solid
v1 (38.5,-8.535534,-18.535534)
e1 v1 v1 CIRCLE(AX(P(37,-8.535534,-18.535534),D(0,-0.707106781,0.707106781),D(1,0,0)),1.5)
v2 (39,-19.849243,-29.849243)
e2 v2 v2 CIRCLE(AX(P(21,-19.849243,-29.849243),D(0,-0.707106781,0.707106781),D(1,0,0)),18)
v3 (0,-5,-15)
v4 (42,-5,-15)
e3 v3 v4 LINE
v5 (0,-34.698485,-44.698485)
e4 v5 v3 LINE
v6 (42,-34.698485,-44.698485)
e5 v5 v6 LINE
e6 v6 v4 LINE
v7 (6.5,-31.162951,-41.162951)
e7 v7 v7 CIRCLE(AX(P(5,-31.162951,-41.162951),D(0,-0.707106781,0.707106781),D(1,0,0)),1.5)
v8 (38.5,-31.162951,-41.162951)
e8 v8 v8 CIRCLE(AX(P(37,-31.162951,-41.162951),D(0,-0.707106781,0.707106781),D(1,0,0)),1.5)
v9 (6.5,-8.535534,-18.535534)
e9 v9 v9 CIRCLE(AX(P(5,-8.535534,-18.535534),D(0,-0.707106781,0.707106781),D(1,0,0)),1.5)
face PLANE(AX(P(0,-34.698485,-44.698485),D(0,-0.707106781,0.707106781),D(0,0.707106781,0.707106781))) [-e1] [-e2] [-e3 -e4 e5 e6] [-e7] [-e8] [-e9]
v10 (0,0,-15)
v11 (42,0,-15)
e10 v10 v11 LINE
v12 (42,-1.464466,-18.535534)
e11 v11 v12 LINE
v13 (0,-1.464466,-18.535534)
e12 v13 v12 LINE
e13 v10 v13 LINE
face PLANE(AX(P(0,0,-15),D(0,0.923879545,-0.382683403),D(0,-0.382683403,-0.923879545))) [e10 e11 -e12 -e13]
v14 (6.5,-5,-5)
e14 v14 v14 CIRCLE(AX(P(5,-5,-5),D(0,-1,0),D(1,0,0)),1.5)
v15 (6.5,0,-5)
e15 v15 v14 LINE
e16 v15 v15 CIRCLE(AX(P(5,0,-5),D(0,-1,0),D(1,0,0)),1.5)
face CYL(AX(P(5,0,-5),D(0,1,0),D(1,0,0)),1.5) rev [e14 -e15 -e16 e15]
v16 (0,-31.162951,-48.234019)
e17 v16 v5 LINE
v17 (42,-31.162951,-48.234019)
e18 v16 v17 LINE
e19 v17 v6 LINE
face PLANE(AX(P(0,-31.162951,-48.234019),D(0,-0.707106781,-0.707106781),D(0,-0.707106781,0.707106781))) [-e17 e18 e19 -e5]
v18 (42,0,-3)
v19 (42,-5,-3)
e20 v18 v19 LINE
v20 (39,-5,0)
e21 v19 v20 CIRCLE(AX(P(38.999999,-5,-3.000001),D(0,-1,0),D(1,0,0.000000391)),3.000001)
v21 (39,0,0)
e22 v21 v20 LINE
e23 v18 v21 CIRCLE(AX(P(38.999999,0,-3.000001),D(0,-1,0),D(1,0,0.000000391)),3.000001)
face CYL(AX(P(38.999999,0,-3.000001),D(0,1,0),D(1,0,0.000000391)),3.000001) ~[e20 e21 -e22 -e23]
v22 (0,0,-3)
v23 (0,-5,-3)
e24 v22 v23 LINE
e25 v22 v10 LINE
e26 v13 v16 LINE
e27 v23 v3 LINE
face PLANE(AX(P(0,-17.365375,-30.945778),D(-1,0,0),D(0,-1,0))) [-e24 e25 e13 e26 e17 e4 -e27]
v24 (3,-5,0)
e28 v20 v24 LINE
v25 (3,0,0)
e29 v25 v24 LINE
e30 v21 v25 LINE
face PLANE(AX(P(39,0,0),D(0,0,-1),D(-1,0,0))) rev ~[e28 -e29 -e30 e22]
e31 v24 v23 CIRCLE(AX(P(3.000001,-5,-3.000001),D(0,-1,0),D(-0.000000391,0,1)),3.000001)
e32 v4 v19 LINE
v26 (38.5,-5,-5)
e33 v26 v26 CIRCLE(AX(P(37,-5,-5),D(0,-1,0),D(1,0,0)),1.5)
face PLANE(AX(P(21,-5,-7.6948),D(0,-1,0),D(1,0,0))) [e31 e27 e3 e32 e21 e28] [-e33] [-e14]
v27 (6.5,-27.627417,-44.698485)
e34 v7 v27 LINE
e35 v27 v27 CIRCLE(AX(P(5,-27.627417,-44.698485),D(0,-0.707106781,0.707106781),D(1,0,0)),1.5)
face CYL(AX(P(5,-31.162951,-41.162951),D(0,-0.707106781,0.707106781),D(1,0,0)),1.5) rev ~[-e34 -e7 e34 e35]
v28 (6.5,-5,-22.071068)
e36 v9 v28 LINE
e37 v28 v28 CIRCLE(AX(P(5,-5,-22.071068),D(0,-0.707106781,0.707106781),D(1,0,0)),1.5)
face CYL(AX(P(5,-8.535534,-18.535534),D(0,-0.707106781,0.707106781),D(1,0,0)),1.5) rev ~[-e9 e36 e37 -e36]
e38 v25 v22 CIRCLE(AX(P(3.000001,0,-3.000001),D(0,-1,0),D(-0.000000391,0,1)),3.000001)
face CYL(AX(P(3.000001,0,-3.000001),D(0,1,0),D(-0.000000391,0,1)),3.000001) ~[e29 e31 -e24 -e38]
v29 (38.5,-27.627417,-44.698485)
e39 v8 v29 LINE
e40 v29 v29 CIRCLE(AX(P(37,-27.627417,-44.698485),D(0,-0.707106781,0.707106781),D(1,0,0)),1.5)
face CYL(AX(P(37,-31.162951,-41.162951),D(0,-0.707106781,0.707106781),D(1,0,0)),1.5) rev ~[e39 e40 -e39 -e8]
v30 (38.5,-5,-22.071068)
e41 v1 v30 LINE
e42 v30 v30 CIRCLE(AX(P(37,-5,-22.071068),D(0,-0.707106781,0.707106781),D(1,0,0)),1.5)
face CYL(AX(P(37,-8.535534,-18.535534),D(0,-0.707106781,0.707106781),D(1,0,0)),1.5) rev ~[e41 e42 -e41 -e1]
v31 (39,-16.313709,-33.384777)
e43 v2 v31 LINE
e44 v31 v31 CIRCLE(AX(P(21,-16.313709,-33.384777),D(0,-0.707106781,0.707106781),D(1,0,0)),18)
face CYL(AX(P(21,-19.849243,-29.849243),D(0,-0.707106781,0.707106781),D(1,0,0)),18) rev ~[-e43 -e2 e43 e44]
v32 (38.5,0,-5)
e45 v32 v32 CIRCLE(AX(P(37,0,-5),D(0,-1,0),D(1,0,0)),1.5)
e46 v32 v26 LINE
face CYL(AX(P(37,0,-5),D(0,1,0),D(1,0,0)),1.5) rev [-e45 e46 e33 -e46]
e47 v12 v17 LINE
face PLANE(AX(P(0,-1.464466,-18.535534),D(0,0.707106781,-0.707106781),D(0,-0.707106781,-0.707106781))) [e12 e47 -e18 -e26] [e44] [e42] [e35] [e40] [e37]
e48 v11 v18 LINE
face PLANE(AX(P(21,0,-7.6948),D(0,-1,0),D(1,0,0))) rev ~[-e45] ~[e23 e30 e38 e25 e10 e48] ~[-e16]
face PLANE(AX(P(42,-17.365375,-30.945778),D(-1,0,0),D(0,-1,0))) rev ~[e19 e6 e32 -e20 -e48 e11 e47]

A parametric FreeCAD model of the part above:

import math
import FreeCAD as App
import Part
import Sketcher
from FreeCAD import Vector
Q = App.Units.Quantity

doc = App.newDocument("Part")
body = doc.addObject("PartDesign::Body", "Body")

sketch1 = body.newObject("Sketcher::SketchObject", "Sketch")
sketch1.AttachmentSupport = (doc.getObject("XZ_Plane"), [""])
sketch1.MapMode = "FlatFace"
sketch1.addGeometry(Part.LineSegment(Vector(39, 0, 0), Vector(3, 0, 0)), False)
sketch1.addGeometry(Part.ArcOfCircle(Part.Circle(Vector(3, -3, 0), Vector(0, 0, 1), 3), math.radians(90), math.radians(180)), False)
sketch1.addGeometry(Part.LineSegment(Vector(0, -3, 0), Vector(0, -15, 0)), False)
sketch1.addGeometry(Part.LineSegment(Vector(0, -15, 0), Vector(42, -15, 0)), False)
sketch1.addGeometry(Part.LineSegment(Vector(42, -15, 0), Vector(42, -3, 0)), False)
sketch1.addGeometry(Part.ArcOfCircle(Part.Circle(Vector(39, -3, 0), Vector(0, 0, 1), 3), math.radians(0), math.radians(90)), False)
sketch1.addGeometry(Part.Circle(Vector(5, -5, 0), Vector(0, 0, 1), 1.5), False)
sketch1.addGeometry(Part.Circle(Vector(37, -5, 0), Vector(0, 0, 1), 1.5), False)
sketch1.addConstraint(Sketcher.Constraint("Tangent", 0, 2, 1, 1))
sketch1.addConstraint(Sketcher.Constraint("Tangent", 1, 2, 2, 1))
sketch1.addConstraint(Sketcher.Constraint("Coincident", 2, 2, 3, 1))
sketch1.addConstraint(Sketcher.Constraint("Coincident", 3, 2, 4, 1))
sketch1.addConstraint(Sketcher.Constraint("Tangent", 4, 2, 5, 1))
sketch1.addConstraint(Sketcher.Constraint("Tangent", 5, 2, 0, 1))
sketch1.addConstraint(Sketcher.Constraint("Horizontal", 0))
sketch1.addConstraint(Sketcher.Constraint("Vertical", 2))
sketch1.addConstraint(Sketcher.Constraint("Horizontal", 3))
sketch1.addConstraint(Sketcher.Constraint("Vertical", 4))
sketch1.addConstraint(Sketcher.Constraint("Equal", 1, 5))
sketch1.addConstraint(Sketcher.Constraint("Equal", 6, 7))
sketch1.addConstraint(Sketcher.Constraint("PointOnObject", 0, 2, -1))
sketch1.addConstraint(Sketcher.Constraint("PointOnObject", 1, 2, -2))
sketch1.addConstraint(Sketcher.Constraint("Horizontal", 6, 3, 7, 3))
sketch1.addConstraint(Sketcher.Constraint("Diameter", 6, 3.0))
sketch1.addConstraint(Sketcher.Constraint("Radius", 1, 3.000001))
sketch1.addConstraint(Sketcher.Constraint("DistanceX", 0, 2, 0, 1, 36.0))
sketch1.addConstraint(Sketcher.Constraint("DistanceY", 2, 2, 2, 1, 12.0))
sketch1.addConstraint(Sketcher.Constraint("DistanceX", -1, 1, 6, 3, 5.0))
sketch1.addConstraint(Sketcher.Constraint("DistanceY", 6, 3, -1, 1, 5.0))
sketch1.addConstraint(Sketcher.Constraint("DistanceX", -1, 1, 7, 3, 37.0))
pad1 = body.newObject("PartDesign::Pad", "Pad")
pad1.Profile = sketch1
pad1.Length = 5

sketch2 = body.newObject("Sketcher::SketchObject", "Sketch001")
sketch2.AttachmentSupport = (doc.getObject("YZ_Plane"), [""])
sketch2.MapMode = "FlatFace"
sketch2.addGeometry(Part.LineSegment(Vector(-34.7, -44.7, 0), Vector(-5, -15, 0)), False)
sketch2.addGeometry(Part.LineSegment(Vector(-5, -15, 0), Vector(0, -15, 0)), False)
sketch2.addGeometry(Part.LineSegment(Vector(0, -15, 0), Vector(-1.5, -18.5, 0)), False)
sketch2.addGeometry(Part.LineSegment(Vector(-1.5, -18.5, 0), Vector(-31.2, -48.2, 0)), False)
sketch2.addGeometry(Part.LineSegment(Vector(-31.2, -48.2, 0), Vector(-34.7, -44.7, 0)), False)
sketch2.addConstraint(Sketcher.Constraint("Coincident", 0, 2, 1, 1))
sketch2.addConstraint(Sketcher.Constraint("Coincident", 1, 2, 2, 1))
sketch2.addConstraint(Sketcher.Constraint("Coincident", 2, 2, 3, 1))
sketch2.addConstraint(Sketcher.Constraint("Coincident", 3, 2, 4, 1))
sketch2.addConstraint(Sketcher.Constraint("Coincident", 4, 2, 0, 1))
sketch2.addConstraint(Sketcher.Constraint("Horizontal", 1))
sketch2.addConstraint(Sketcher.Constraint("PointOnObject", 1, 2, -2))
sketch2.addConstraint(Sketcher.Constraint("Parallel", 0, 3))
sketch2.addConstraint(Sketcher.Constraint("Perpendicular", 3, 4))
sketch2.addConstraint(Sketcher.Constraint("Equal", 0, 3))
sketch2.addConstraint(Sketcher.Constraint("DistanceX", 1, 1, 1, 2, 5.0))
sketch2.addConstraint(Sketcher.Constraint("Angle", 0, Q("45 deg")))
sketch2.addConstraint(Sketcher.Constraint("Distance", 0, 42.0))
sketch2.addConstraint(Sketcher.Constraint("Distance", 4, 5.0))
sketch2.addConstraint(Sketcher.Constraint("DistanceY", 0, 2, -1, 1, 15.0))
pad2 = body.newObject("PartDesign::Pad", "Pad001")
pad2.Profile = sketch2
pad2.Length = 42

sketch3 = body.newObject("Sketcher::SketchObject", "Sketch002")
sketch3.Placement = App.Placement(Vector(0, 5, -5), App.Rotation(Vector(1, 0, 0), Vector(0, 0.707106781, 0.707106781), Vector(0, -0.707106781, 0.707106781), "ZXY"))
sketch3.addGeometry(Part.Circle(Vector(37, -19.1, 0), Vector(0, 0, 1), 1.5), False)
sketch3.addGeometry(Part.Circle(Vector(37, -51.1, 0), Vector(0, 0, 1), 1.5), False)
sketch3.addGeometry(Part.Circle(Vector(5, -51.1, 0), Vector(0, 0, 1), 1.5), False)
sketch3.addGeometry(Part.Circle(Vector(5, -19.1, 0), Vector(0, 0, 1), 1.5), False)
sketch3.addGeometry(Part.Circle(Vector(21, -35.1, 0), Vector(0, 0, 1), 18), False)
sketch3.addConstraint(Sketcher.Constraint("Equal", 0, 1))
sketch3.addConstraint(Sketcher.Constraint("Equal", 1, 2))
sketch3.addConstraint(Sketcher.Constraint("Equal", 2, 3))
sketch3.addConstraint(Sketcher.Constraint("Horizontal", 1, 3, 2, 3))
sketch3.addConstraint(Sketcher.Constraint("Horizontal", 0, 3, 3, 3))
sketch3.addConstraint(Sketcher.Constraint("Vertical", 0, 3, 1, 3))
sketch3.addConstraint(Sketcher.Constraint("Vertical", 2, 3, 3, 3))
sketch3.addConstraint(Sketcher.Constraint("Diameter", 0, 3.0))
sketch3.addConstraint(Sketcher.Constraint("Diameter", 4, 36.0))
sketch3.addConstraint(Sketcher.Constraint("DistanceX", -1, 1, 0, 3, 37.0))
sketch3.addConstraint(Sketcher.Constraint("DistanceX", -1, 1, 2, 3, 5.0))
sketch3.addConstraint(Sketcher.Constraint("DistanceX", -1, 1, 4, 3, 21.0))
sketch3.addConstraint(Sketcher.Constraint("DistanceY", 1, 3, 0, 3, 32.0))
sketch3.addConstraint(Sketcher.Constraint("DistanceY", 4, 3, 0, 3, 16.0))
sketch3.addConstraint(Sketcher.Constraint("DistanceY", 0, 3, -1, 1, 19.142136))
pocket1 = body.newObject("PartDesign::Pocket", "Pocket")
pocket1.Profile = sketch3
pocket1.Length = 5

doc.recompute()
